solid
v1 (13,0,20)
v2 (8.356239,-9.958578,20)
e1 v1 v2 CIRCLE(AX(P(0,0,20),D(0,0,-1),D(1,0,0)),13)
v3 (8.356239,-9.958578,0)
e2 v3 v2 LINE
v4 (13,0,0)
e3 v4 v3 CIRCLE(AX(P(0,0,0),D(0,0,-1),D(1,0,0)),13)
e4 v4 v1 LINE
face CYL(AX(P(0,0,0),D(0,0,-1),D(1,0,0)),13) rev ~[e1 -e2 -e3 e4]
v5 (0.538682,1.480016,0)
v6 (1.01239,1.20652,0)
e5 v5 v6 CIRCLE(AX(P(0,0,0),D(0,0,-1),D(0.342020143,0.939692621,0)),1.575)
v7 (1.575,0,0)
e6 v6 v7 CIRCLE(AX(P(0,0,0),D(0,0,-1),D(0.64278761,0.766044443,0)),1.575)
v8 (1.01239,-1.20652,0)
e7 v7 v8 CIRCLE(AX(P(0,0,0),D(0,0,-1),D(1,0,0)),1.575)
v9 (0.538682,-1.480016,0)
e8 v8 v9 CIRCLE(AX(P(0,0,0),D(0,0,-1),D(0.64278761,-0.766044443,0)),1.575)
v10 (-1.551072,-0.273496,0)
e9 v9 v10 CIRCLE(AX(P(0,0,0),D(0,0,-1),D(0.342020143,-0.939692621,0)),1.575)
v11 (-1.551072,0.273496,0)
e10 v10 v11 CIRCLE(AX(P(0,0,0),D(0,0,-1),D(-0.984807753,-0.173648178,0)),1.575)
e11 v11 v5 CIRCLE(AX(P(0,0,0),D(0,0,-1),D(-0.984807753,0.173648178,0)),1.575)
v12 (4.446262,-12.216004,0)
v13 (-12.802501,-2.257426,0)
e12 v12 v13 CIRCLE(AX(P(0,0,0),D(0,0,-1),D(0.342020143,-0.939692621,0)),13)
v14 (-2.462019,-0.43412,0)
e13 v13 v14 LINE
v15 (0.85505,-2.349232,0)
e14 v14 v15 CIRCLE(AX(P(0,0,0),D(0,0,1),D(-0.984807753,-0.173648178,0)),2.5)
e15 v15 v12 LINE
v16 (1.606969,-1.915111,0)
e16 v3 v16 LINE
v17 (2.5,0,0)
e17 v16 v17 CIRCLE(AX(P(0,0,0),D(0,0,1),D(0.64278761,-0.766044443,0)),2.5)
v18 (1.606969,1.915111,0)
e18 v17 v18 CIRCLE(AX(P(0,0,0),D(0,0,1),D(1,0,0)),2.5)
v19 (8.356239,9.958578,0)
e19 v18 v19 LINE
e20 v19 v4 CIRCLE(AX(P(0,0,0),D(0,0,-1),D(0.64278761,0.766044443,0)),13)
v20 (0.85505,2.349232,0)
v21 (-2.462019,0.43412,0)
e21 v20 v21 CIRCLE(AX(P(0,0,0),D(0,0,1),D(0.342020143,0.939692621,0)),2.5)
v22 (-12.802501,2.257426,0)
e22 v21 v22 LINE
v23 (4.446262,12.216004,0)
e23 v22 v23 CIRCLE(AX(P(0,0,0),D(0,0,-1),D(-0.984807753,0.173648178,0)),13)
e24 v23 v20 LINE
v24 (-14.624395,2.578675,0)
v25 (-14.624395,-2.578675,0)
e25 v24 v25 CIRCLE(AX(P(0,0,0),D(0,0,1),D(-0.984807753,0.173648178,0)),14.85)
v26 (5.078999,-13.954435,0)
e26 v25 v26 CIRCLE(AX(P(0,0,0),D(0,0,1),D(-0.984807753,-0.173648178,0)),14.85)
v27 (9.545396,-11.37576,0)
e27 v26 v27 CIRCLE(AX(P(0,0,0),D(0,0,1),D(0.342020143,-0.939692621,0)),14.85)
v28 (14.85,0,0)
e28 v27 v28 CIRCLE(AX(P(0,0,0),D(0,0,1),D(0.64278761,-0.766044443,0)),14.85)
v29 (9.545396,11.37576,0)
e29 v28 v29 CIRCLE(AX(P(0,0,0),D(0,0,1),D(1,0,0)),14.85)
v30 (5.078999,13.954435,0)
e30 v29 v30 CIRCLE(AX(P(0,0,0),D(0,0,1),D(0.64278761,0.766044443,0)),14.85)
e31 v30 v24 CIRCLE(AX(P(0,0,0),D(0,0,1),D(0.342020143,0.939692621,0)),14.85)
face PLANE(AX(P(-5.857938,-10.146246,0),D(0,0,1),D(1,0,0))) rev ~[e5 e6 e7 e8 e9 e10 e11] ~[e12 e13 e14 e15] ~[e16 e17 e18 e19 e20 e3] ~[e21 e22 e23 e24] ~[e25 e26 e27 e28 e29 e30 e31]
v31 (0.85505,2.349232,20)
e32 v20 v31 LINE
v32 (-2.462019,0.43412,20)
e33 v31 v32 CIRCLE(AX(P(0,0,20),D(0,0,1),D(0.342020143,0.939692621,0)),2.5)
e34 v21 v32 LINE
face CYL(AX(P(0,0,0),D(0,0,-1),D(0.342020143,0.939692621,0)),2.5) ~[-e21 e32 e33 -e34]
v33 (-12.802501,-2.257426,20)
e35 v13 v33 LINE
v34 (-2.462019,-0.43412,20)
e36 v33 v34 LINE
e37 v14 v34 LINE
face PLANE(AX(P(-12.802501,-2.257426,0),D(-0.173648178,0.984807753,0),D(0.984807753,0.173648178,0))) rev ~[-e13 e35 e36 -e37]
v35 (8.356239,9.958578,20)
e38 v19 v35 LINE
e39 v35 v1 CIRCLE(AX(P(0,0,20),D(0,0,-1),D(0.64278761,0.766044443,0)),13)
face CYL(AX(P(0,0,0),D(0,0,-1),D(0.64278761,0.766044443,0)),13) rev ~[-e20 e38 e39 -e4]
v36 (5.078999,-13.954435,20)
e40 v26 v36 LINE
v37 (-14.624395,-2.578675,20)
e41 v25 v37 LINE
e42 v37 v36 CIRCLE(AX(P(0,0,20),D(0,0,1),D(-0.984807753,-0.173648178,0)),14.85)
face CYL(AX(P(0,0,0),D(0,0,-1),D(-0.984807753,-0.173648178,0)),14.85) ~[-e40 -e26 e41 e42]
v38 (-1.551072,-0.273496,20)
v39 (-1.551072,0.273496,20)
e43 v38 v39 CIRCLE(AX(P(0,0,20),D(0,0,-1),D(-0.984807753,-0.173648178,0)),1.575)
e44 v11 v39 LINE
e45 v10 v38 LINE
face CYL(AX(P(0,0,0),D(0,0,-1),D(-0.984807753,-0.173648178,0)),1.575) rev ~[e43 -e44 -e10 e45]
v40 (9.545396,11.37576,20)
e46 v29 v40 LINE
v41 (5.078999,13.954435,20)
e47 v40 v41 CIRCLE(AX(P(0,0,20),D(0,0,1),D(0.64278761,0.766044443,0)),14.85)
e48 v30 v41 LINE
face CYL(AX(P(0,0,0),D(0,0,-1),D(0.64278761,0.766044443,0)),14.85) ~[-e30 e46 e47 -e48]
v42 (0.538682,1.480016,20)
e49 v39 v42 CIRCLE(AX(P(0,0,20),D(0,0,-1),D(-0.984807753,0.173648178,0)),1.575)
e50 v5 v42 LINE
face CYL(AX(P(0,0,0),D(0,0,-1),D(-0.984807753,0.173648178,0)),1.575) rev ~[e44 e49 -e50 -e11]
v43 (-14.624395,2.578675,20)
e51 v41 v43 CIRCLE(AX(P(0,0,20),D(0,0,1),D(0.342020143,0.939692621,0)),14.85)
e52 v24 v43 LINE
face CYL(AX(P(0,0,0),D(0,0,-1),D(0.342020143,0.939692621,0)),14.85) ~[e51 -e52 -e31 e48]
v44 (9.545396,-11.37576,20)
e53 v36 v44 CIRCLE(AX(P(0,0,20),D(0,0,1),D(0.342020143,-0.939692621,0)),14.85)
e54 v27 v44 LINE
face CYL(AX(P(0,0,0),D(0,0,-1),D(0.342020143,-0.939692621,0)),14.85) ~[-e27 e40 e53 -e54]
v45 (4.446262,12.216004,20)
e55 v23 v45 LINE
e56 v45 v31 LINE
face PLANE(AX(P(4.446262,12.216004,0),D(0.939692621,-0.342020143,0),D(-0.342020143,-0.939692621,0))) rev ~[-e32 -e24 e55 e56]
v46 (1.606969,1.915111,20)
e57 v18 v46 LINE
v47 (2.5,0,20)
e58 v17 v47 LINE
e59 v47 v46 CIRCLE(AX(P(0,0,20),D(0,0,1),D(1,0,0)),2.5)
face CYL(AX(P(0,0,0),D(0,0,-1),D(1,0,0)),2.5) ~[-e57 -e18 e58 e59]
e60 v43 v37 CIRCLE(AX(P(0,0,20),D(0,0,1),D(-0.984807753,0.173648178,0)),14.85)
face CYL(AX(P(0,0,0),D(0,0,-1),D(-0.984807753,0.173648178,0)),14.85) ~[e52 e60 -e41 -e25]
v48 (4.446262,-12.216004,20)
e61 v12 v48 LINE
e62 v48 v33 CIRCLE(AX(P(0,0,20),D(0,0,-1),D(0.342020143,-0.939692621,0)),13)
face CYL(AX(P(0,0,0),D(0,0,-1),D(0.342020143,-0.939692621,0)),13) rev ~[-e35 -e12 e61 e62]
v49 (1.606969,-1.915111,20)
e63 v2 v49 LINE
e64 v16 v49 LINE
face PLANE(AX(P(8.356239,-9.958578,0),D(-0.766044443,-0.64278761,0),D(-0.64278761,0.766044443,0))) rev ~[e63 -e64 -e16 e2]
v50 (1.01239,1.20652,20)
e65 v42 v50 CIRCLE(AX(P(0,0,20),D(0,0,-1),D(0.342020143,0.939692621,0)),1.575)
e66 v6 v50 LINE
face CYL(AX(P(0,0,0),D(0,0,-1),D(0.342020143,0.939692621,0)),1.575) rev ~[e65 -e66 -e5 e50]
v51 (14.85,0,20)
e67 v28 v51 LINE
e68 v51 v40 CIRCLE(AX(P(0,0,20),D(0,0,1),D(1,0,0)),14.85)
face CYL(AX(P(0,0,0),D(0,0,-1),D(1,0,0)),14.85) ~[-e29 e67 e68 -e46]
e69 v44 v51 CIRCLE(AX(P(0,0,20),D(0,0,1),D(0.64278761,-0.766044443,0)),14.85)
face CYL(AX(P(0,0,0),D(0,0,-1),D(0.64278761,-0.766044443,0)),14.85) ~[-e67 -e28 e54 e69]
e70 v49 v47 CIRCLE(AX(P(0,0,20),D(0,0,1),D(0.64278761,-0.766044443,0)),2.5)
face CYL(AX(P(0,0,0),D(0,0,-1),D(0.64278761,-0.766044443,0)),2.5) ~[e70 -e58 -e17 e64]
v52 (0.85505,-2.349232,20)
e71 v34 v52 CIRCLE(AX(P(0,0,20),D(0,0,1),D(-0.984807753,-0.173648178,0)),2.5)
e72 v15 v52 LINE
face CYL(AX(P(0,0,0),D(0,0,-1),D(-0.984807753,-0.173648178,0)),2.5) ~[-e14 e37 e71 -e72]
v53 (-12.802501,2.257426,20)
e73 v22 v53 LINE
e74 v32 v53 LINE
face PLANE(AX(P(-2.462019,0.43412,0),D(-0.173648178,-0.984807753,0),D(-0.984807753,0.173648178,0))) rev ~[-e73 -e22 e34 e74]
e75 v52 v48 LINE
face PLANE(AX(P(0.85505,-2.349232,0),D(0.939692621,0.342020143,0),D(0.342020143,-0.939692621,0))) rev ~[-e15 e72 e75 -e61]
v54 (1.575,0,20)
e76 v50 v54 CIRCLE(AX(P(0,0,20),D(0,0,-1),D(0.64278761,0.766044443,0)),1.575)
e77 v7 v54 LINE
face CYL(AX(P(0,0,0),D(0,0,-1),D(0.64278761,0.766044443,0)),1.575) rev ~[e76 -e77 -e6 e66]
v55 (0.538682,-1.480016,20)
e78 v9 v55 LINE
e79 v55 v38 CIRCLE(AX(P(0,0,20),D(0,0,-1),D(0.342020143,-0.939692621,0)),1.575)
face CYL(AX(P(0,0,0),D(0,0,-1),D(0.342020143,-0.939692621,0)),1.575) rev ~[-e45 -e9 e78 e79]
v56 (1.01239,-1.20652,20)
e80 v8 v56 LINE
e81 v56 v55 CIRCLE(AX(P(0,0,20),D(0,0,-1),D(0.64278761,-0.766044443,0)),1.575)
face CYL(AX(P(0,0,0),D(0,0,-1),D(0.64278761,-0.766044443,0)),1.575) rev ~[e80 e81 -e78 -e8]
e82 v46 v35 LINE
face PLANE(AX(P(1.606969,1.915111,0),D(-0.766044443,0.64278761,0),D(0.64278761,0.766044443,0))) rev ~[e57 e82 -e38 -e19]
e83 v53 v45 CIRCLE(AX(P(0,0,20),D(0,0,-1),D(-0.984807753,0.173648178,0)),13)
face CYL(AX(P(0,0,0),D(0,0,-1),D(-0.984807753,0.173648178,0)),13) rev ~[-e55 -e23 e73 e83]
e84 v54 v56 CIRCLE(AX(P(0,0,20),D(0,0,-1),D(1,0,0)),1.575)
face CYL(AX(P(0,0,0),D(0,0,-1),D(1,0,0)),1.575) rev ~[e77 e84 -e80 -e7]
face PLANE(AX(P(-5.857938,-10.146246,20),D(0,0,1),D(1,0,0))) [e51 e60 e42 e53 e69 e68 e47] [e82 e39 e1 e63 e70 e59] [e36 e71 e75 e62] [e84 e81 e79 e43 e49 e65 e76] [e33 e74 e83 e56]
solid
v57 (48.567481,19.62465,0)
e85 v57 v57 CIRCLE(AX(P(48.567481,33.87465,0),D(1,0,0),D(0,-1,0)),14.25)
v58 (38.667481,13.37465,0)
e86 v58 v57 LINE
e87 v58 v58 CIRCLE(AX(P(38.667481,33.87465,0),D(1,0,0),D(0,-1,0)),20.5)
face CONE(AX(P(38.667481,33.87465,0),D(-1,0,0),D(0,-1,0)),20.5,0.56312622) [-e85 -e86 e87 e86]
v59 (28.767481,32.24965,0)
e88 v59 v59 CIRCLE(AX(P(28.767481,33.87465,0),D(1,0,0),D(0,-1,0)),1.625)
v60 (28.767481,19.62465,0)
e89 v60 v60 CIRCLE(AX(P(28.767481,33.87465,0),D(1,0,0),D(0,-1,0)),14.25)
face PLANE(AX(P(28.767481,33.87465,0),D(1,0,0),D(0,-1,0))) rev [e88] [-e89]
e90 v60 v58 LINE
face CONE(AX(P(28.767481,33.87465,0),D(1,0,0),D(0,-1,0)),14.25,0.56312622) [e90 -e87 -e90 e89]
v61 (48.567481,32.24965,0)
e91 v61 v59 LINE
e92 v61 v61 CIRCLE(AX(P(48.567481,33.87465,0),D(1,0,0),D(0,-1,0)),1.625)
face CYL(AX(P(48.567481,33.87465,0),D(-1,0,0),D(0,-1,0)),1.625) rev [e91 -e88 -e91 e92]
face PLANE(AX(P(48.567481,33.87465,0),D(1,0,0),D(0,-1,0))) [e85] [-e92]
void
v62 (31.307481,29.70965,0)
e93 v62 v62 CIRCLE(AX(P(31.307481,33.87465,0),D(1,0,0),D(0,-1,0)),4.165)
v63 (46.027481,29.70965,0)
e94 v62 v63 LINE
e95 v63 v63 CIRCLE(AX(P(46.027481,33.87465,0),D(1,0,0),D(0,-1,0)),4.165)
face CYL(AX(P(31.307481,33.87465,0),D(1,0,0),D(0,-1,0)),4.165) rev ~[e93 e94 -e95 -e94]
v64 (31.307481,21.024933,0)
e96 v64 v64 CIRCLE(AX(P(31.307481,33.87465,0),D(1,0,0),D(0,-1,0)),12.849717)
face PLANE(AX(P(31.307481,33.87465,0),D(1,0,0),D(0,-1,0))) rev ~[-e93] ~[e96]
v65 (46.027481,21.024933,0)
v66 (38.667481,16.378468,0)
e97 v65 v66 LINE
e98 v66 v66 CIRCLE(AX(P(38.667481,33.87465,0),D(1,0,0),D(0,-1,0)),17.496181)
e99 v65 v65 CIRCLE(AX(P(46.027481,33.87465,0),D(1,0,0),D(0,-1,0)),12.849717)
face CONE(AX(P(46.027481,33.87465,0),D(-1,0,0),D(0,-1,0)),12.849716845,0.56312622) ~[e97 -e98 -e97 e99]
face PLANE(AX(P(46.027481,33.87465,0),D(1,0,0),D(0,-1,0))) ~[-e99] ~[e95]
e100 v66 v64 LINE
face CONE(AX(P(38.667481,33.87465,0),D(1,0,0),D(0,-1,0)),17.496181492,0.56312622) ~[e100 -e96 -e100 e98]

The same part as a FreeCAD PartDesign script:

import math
import FreeCAD as App
import Part
import Sketcher
Q = App.Units.Quantity


def add_polygon(sketch, points):
    """Adds a closed chain of lines whose ends are joined by coincident constraints."""
    first, n = sketch.GeometryCount, len(points)
    for a, b in zip(points, points[1:] + points[:1]):
        sketch.addGeometry(Part.LineSegment(App.Vector(*a, 0), App.Vector(*b, 0)), False)
    for i in range(n):
        sketch.addConstraint(Sketcher.Constraint("Coincident", first + i, 2, first + (i + 1) % n, 1))

doc = App.newDocument("Part")
body = doc.addObject("PartDesign::Body", "Body")

# Sketch on XY plane
sketch1 = doc.addObject("Sketcher::SketchObject", "Sketch")
body.addObject(sketch1)
sketch1.AttachmentSupport = (doc.XY_Plane, [""])
sketch1.MapMode = "FlatFace"
sketch1.addGeometry(Part.ArcOfCircle(Part.Circle(App.Vector(0, 0, 0), App.Vector(0, 0, 1), 14.85), math.radians(0), math.radians(50)), False)
sketch1.addGeometry(Part.ArcOfCircle(Part.Circle(App.Vector(0, 0, 0), App.Vector(0, 0, 1), 14.85), math.radians(50), math.radians(70)), False)
sketch1.addGeometry(Part.ArcOfCircle(Part.Circle(App.Vector(0, 0, 0), App.Vector(0, 0, 1), 14.85), math.radians(70), math.radians(170)), False)
sketch1.addGeometry(Part.ArcOfCircle(Part.Circle(App.Vector(0, 0, 0), App.Vector(0, 0, 1), 14.85), math.radians(170), math.radians(190)), False)
sketch1.addGeometry(Part.ArcOfCircle(Part.Circle(App.Vector(0, 0, 0), App.Vector(0, 0, 1), 14.85), math.radians(-170), math.radians(-70)), False)
sketch1.addGeometry(Part.ArcOfCircle(Part.Circle(App.Vector(0, 0, 0), App.Vector(0, 0, 1), 14.85), math.radians(-70), math.radians(-50)), False)
sketch1.addGeometry(Part.ArcOfCircle(Part.Circle(App.Vector(0, 0, 0), App.Vector(0, 0, 1), 14.85), math.radians(-50), math.radians(0)), False)
sketch1.addGeometry(Part.LineSegment(App.Vector(0.85505, -2.349232, 0), App.Vector(4.446262, -12.216004, 0)), False)
sketch1.addGeometry(Part.ArcOfCircle(Part.Circle(App.Vector(0, 0, 0), App.Vector(0, 0, 1), 13), math.radians(-170), math.radians(-70)), False)
sketch1.addGeometry(Part.LineSegment(App.Vector(-12.802501, -2.257426, 0), App.Vector(-2.462019, -0.43412, 0)), False)
sketch1.addGeometry(Part.ArcOfCircle(Part.Circle(App.Vector(0, 0, 0), App.Vector(0, 0, 1), 2.5), math.radians(-170), math.radians(-70)), False)
sketch1.addGeometry(Part.ArcOfCircle(Part.Circle(App.Vector(0, 0, 0), App.Vector(0, 0, 1), 1.575), math.radians(-170), math.radians(-70)), False)
sketch1.addGeometry(Part.ArcOfCircle(Part.Circle(App.Vector(0, 0, 0), App.Vector(0, 0, 1), 1.575), math.radians(170), math.radians(190)), False)
sketch1.addGeometry(Part.ArcOfCircle(Part.Circle(App.Vector(0, 0, 0), App.Vector(0, 0, 1), 1.575), math.radians(70), math.radians(170)), False)
sketch1.addGeometry(Part.ArcOfCircle(Part.Circle(App.Vector(0, 0, 0), App.Vector(0, 0, 1), 1.575), math.radians(50), math.radians(70)), False)
sketch1.addGeometry(Part.ArcOfCircle(Part.Circle(App.Vector(0, 0, 0), App.Vector(0, 0, 1), 1.575), math.radians(0), math.radians(50)), False)
sketch1.addGeometry(Part.ArcOfCircle(Part.Circle(App.Vector(0, 0, 0), App.Vector(0, 0, 1), 1.575), math.radians(-50), math.radians(0)), False)
sketch1.addGeometry(Part.ArcOfCircle(Part.Circle(App.Vector(0, 0, 0), App.Vector(0, 0, 1), 1.575), math.radians(-70), math.radians(-50)), False)
sketch1.addGeometry(Part.LineSegment(App.Vector(1.606969, 1.915111, 0), App.Vector(8.356239, 9.958578, 0)), False)
sketch1.addGeometry(Part.ArcOfCircle(Part.Circle(App.Vector(0, 0, 0), App.Vector(0, 0, 1), 13), math.radians(0), math.radians(50)), False)
sketch1.addGeometry(Part.ArcOfCircle(Part.Circle(App.Vector(0, 0, 0), App.Vector(0, 0, 1), 13), math.radians(-50), math.radians(0)), False)
sketch1.addGeometry(Part.LineSegment(App.Vector(8.356239, -9.958578, 0), App.Vector(1.606969, -1.915111, 0)), False)
sketch1.addGeometry(Part.ArcOfCircle(Part.Circle(App.Vector(0, 0, 0), App.Vector(0, 0, 1), 2.5), math.radians(-50), math.radians(0)), False)
sketch1.addGeometry(Part.ArcOfCircle(Part.Circle(App.Vector(0, 0, 0), App.Vector(0, 0, 1), 2.5), math.radians(0), math.radians(50)), False)
sketch1.addGeometry(Part.ArcOfCircle(Part.Circle(App.Vector(0, 0, 0), App.Vector(0, 0, 1), 13), math.radians(70), math.radians(170)), False)
sketch1.addGeometry(Part.LineSegment(App.Vector(4.446262, 12.216004, 0), App.Vector(0.85505, 2.349232, 0)), False)
sketch1.addGeometry(Part.ArcOfCircle(Part.Circle(App.Vector(0, 0, 0), App.Vector(0, 0, 1), 2.5), math.radians(70), math.radians(170)), False)
sketch1.addGeometry(Part.LineSegment(App.Vector(-2.462019, 0.43412, 0), App.Vector(-12.802501, 2.257426, 0)), False)
sketch1.addConstraint(Sketcher.Constraint("Tangent", 0, 2, 1, 1))
sketch1.addConstraint(Sketcher.Constraint("Tangent", 1, 2, 2, 1))
sketch1.addConstraint(Sketcher.Constraint("Tangent", 2, 2, 3, 1))
sketch1.addConstraint(Sketcher.Constraint("Tangent", 3, 2, 4, 1))
sketch1.addConstraint(Sketcher.Constraint("Tangent", 4, 2, 5, 1))
sketch1.addConstraint(Sketcher.Constraint("Tangent", 5, 2, 6, 1))
sketch1.addConstraint(Sketcher.Constraint("Tangent", 6, 2, 0, 1))
sketch1.addConstraint(Sketcher.Constraint("Coincident", 7, 2, 8, 2))
sketch1.addConstraint(Sketcher.Constraint("Coincident", 8, 1, 9, 1))
sketch1.addConstraint(Sketcher.Constraint("Coincident", 9, 2, 10, 1))
sketch1.addConstraint(Sketcher.Constraint("Coincident", 10, 2, 7, 1))
sketch1.addConstraint(Sketcher.Constraint("Tangent", 11, 1, 12, 2))
sketch1.addConstraint(Sketcher.Constraint("Tangent", 12, 1, 13, 2))
sketch1.addConstraint(Sketcher.Constraint("Tangent", 13, 1, 14, 2))
sketch1.addConstraint(Sketcher.Constraint("Tangent", 14, 1, 15, 2))
sketch1.addConstraint(Sketcher.Constraint("Tangent", 15, 1, 16, 2))
sketch1.addConstraint(Sketcher.Constraint("Tangent", 16, 1, 17, 2))
sketch1.addConstraint(Sketcher.Constraint("Tangent", 17, 1, 11, 2))
sketch1.addConstraint(Sketcher.Constraint("Coincident", 18, 2, 19, 2))
sketch1.addConstraint(Sketcher.Constraint("Tangent", 19, 1, 20, 2))
sketch1.addConstraint(Sketcher.Constraint("Coincident", 20, 1, 21, 1))
sketch1.addConstraint(Sketcher.Constraint("Coincident", 21, 2, 22, 1))
sketch1.addConstraint(Sketcher.Constraint("Tangent", 22, 2, 23, 1))
sketch1.addConstraint(Sketcher.Constraint("Coincident", 23, 2, 18, 1))
sketch1.addConstraint(Sketcher.Constraint("Coincident", 24, 1, 25, 1))
sketch1.addConstraint(Sketcher.Constraint("Coincident", 25, 2, 26, 1))
sketch1.addConstraint(Sketcher.Constraint("Coincident", 26, 2, 27, 1))
sketch1.addConstraint(Sketcher.Constraint("Coincident", 27, 2, 24, 2))
sketch1.addConstraint(Sketcher.Constraint("Coincident", 0, 3, -1, 1))
sketch1.addConstraint(Sketcher.Constraint("Coincident", 2, 3, -1, 1))
sketch1.addConstraint(Sketcher.Constraint("Coincident", 4, 3, -1, 1))
sketch1.addConstraint(Sketcher.Constraint("Coincident", 8, 3, -1, 1))
sketch1.addConstraint(Sketcher.Constraint("Coincident", 10, 3, -1, 1))
sketch1.addConstraint(Sketcher.Constraint("Coincident", 11, 3, -1, 1))
sketch1.addConstraint(Sketcher.Constraint("Coincident", 13, 3, -1, 1))
sketch1.addConstraint(Sketcher.Constraint("Coincident", 15, 3, -1, 1))
sketch1.addConstraint(Sketcher.Constraint("Coincident", 19, 3, -1, 1))
sketch1.addConstraint(Sketcher.Constraint("Coincident", 22, 3, -1, 1))
sketch1.addConstraint(Sketcher.Constraint("Coincident", 24, 3, -1, 1))
sketch1.addConstraint(Sketcher.Constraint("Coincident", 26, 3, -1, 1))
sketch1.addConstraint(Sketcher.Constraint("Equal", 8, 19))
sketch1.addConstraint(Sketcher.Constraint("Equal", 19, 20))
sketch1.addConstraint(Sketcher.Constraint("Equal", 10, 22))
sketch1.addConstraint(Sketcher.Constraint("Equal", 22, 23))
sketch1.addConstraint(Sketcher.Constraint("Equal", 20, 24))
sketch1.addConstraint(Sketcher.Constraint("Equal", 23, 26))
sketch1.addConstraint(Sketcher.Constraint("PointOnObject", 6, 2, -1))
sketch1.addConstraint(Sketcher.Constraint("PointOnObject", 15, 1, -1))
sketch1.addConstraint(Sketcher.Constraint("PointOnObject", 19, 1, -1))
sketch1.addConstraint(Sketcher.Constraint("PointOnObject", 22, 2, -1))
sketch1.addConstraint(Sketcher.Constraint("Vertical", 2, 2, 3, 2))
sketch1.addConstraint(Sketcher.Constraint("Vertical", 1, 2, 4, 2))
sketch1.addConstraint(Sketcher.Constraint("Vertical", 0, 2, 5, 2))
sketch1.addConstraint(Sketcher.Constraint("Vertical", 11, 1, 12, 1))
sketch1.addConstraint(Sketcher.Constraint("Vertical", 14, 1, 16, 1))
sketch1.addConstraint(Sketcher.Constraint("Vertical", 13, 1, 17, 1))
sketch1.addConstraint(Sketcher.Constraint("Vertical", 18, 2, 20, 1))
sketch1.addConstraint(Sketcher.Constraint("Vertical", 21, 2, 23, 2))
sketch1.addConstraint(Sketcher.Constraint("Vertical", 7, 2, 24, 1))
sketch1.addConstraint(Sketcher.Constraint("Vertical", 10, 2, 25, 2))
sketch1.addConstraint(Sketcher.Constraint("Vertical", 9, 2, 26, 2))
sketch1.addConstraint(Sketcher.Constraint("Vertical", 8, 1, 27, 2))
sketch1.addConstraint(Sketcher.Constraint("Radius", 8, 13.0))
sketch1.addConstraint(Sketcher.Constraint("Radius", 10, 2.5))
sketch1.addConstraint(Sketcher.Constraint("Angle", 7, Q("-70 deg")))
sketch1.addConstraint(Sketcher.Constraint("Angle", 9, Q("10 deg")))
sketch1.addConstraint(Sketcher.Constraint("Angle", 18, Q("50 deg")))
sketch1.addConstraint(Sketcher.Constraint("Radius", 0, 14.85))
sketch1.addConstraint(Sketcher.Constraint("Radius", 11, 1.575))
sketch1.addConstraint(Sketcher.Constraint("DistanceX", -1, 1, 1, 2, 5.078999))
sketch1.addConstraint(Sketcher.Constraint("DistanceX", 8, 1, -1, 1, 12.802501))
sketch1.addConstraint(Sketcher.Constraint("DistanceY", 8, 1, 2, 2, 4.836102))
sketch1.addConstraint(Sketcher.Constraint("DistanceY", -1, 1, 0, 2, 11.37576))
sketch1.addConstraint(Sketcher.Constraint("DistanceX", -1, 1, 7, 2, 4.446262))
sketch1.addConstraint(Sketcher.Constraint("DistanceX", -1, 1, 13, 1, 0.538682))
sketch1.addConstraint(Sketcher.Constraint("DistanceX", -1, 1, 14, 1, 1.01239))
sketch1.addConstraint(Sketcher.Constraint("DistanceX", -1, 1, 18, 2, 8.356239))
sketch1.addConstraint(Sketcher.Constraint("DistanceY", 11, 1, 12, 1, 0.546992))
pad1 = doc.addObject("PartDesign::Pad", "Pad")
body.addObject(pad1)
pad1.Profile = sketch1
pad1.Length = 20
body2 = doc.addObject("PartDesign::Body", "Body001")

# Sketch on XY plane
sketch2 = doc.addObject("Sketcher::SketchObject", "Sketch001")
body2.addObject(sketch2)
sketch2.AttachmentSupport = (doc.getObject("XY_Plane001"), [""])
sketch2.MapMode = "FlatFace"
add_polygon(sketch2, [(48.567481, 19.62465), (48.567481, 32.24965), (28.767481, 32.24965), (28.767481, 19.62465), (38.667481, 13.37465)])  # lines 0-4
add_polygon(sketch2, [(38.667481, 16.378468), (31.307481, 21.024933), (31.307481, 29.70965), (46.027481, 29.70965), (46.027481, 21.024933)])  # lines 5-9
sketch2.addGeometry(Part.LineSegment(App.Vector(28.767481, 33.87465, 0), App.Vector(48.567481, 33.87465, 0)), True)  # axis
sketch2.addConstraint(Sketcher.Constraint("Vertical", 0))
sketch2.addConstraint(Sketcher.Constraint("Horizontal", 1))
sketch2.addConstraint(Sketcher.Constraint("Vertical", 2))
sketch2.addConstraint(Sketcher.Constraint("Vertical", 6))
sketch2.addConstraint(Sketcher.Constraint("Horizontal", 7))
sketch2.addConstraint(Sketcher.Constraint("Vertical", 8))
sketch2.addConstraint(Sketcher.Constraint("Horizontal", 10))
sketch2.addConstraint(Sketcher.Constraint("Parallel", 3, 5))
sketch2.addConstraint(Sketcher.Constraint("Parallel", 4, 9))
sketch2.addConstraint(Sketcher.Constraint("Horizontal", 2, 2, 4, 2))
sketch2.addConstraint(Sketcher.Constraint("Horizontal", 5, 2, 8, 2))
sketch2.addConstraint(Sketcher.Constraint("Vertical", 3, 2, 9, 2))
sketch2.addConstraint(Sketcher.Constraint("Vertical", 2, 2, 10, 1))
sketch2.addConstraint(Sketcher.Constraint("Vertical", 4, 2, 10, 2))
sketch2.addConstraint(Sketcher.Constraint("Equal", 3, 4))
sketch2.addConstraint(Sketcher.Constraint("DistanceX", 1, 2, 1, 1, 19.8))
sketch2.addConstraint(Sketcher.Constraint("DistanceX", 7, 1, 7, 2, 14.72))
sketch2.addConstraint(Sketcher.Constraint("DistanceY", 0, 1, 0, 2, 12.625))
sketch2.addConstraint(Sketcher.Constraint("DistanceY", 3, 2, 2, 2, 6.25))
sketch2.addConstraint(Sketcher.Constraint("DistanceY", 6, 2, 1, 2, 2.54))
sketch2.addConstraint(Sketcher.Constraint("DistanceY", 2, 2, 10, 1, 14.25))
sketch2.addConstraint(Sketcher.Constraint("DistanceY", 6, 1, 6, 2, 8.684717))
sketch2.addConstraint(Sketcher.Constraint("DistanceX", -1, 1, 0, 2, 48.567481))
sketch2.addConstraint(Sketcher.Constraint("DistanceY", -1, 1, 0, 2, 32.24965))
revolution = doc.addObject("PartDesign::Revolution", "Revolution")
body2.addObject(revolution)
revolution.Profile = sketch2
revolution.ReferenceAxis = (sketch2, ["Axis0"])
revolution.Angle = 360

doc.recompute()
